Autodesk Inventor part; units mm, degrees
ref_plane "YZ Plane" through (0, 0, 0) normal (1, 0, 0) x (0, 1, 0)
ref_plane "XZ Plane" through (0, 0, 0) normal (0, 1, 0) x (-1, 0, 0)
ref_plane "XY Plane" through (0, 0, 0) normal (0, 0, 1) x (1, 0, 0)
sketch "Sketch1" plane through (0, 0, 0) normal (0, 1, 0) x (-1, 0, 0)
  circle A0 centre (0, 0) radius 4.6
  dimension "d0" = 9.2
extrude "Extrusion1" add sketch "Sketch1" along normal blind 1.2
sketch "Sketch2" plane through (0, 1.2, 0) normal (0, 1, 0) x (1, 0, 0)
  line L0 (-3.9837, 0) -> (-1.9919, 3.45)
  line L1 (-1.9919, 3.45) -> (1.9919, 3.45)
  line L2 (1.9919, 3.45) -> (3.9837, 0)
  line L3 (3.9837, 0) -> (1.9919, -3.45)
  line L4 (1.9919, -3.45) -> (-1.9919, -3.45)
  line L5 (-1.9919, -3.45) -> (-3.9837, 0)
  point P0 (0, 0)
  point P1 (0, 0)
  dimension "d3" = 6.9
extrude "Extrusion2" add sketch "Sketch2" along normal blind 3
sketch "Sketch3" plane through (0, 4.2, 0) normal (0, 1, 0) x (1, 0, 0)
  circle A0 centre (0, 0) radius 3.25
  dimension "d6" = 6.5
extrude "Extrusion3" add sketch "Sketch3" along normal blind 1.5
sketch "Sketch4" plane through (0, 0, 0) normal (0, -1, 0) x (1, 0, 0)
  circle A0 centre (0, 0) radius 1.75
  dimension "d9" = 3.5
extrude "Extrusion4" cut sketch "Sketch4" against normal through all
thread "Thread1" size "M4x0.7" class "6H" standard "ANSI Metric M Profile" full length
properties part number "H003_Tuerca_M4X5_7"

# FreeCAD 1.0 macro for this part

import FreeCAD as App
import Part
import Sketcher

V = App.Vector
Q = App.Units.Quantity

doc = App.newDocument("Part")
body = doc.addObject("PartDesign::Body", "Body")

# Sketch on XZ plane
sketch1 = body.newObject("Sketcher::SketchObject", "Sketch")
sketch1.AttachmentSupport = (doc.getObject("XZ_Plane"), [""])
sketch1.MapMode = "FlatFace"
sketch1.addGeometry(Part.Circle(V(0, 0, 0), V(0, 0, 1), 4.6), False)
sketch1.addConstraint([
    Sketcher.Constraint("Coincident", 0, 3, -1, 1),
    Sketcher.Constraint("Diameter", 0, 9.2),
])
pad1 = body.newObject("PartDesign::Pad", "Pad")
pad1.Profile = sketch1
pad1.Length = 1.2
pad1.Reversed = True

# Sketch on XZ plane
sketch2 = body.newObject("Sketcher::SketchObject", "Sketch001")
sketch2.AttachmentSupport = (doc.getObject("XZ_Plane"), [""])
sketch2.MapMode = "FlatFace"
sketch2.AttachmentOffset = App.Placement(V(0, 0, -1.2), App.Rotation())
sketch2.addGeometry([
    Part.LineSegment(V(-1.9919, -3.45, 0), V(-3.9837, 0, 0)),  # 0
    Part.LineSegment(V(-3.9837, 0, 0), V(-1.9919, 3.45, 0)),  # 1
    Part.LineSegment(V(-1.9919, 3.45, 0), V(1.9919, 3.45, 0)),  # 2
    Part.LineSegment(V(1.9919, 3.45, 0), V(3.9837, 0, 0)),  # 3
    Part.LineSegment(V(3.9837, 0, 0), V(1.9919, -3.45, 0)),  # 4
    Part.LineSegment(V(1.9919, -3.45, 0), V(-1.9919, -3.45, 0)),  # 5
], False)
sketch2.addConstraint([
    Sketcher.Constraint("Coincident", 0, 2, 1, 1),
    Sketcher.Constraint("Coincident", 1, 2, 2, 1),
    Sketcher.Constraint("Coincident", 2, 2, 3, 1),
    Sketcher.Constraint("Coincident", 3, 2, 4, 1),
    Sketcher.Constraint("Coincident", 4, 2, 5, 1),
    Sketcher.Constraint("Coincident", 5, 2, 0, 1),
    Sketcher.Constraint("Horizontal", 2),
    Sketcher.Constraint("Horizontal", 5),
    Sketcher.Constraint("Symmetric", 0, 2, 3, 2, -1, 1),
    Sketcher.Constraint("Symmetric", 1, 2, 4, 2, -1, 1),
    Sketcher.Constraint("PointOnObject", 0, 2, -1),
    Sketcher.Constraint("Parallel", 0, 3),
    Sketcher.Constraint("Vertical", 2, 2, 4, 2),
    Sketcher.Constraint("DistanceY", 4, 2, 2, 2, 6.9),
    Sketcher.Constraint("Angle", 0, Q("119.9993 deg")),
    Sketcher.Constraint("DistanceX", 2, 1, 2, 2, 3.9838),
])
pad2 = body.newObject("PartDesign::Pad", "Pad001")
pad2.Profile = sketch2
pad2.Length = 3
pad2.Reversed = True

# Sketch on XZ plane
sketch3 = body.newObject("Sketcher::SketchObject", "Sketch002")
sketch3.AttachmentSupport = (doc.getObject("XZ_Plane"), [""])
sketch3.MapMode = "FlatFace"
sketch3.AttachmentOffset = App.Placement(V(0, 0, -4.2), App.Rotation())
sketch3.addGeometry(Part.Circle(V(0, 0, 0), V(0, 0, 1), 3.25), False)
sketch3.addConstraint([
    Sketcher.Constraint("Coincident", 0, 3, -1, 1),
    Sketcher.Constraint("Diameter", 0, 6.5),
])
pad3 = body.newObject("PartDesign::Pad", "Pad002")
pad3.Profile = sketch3
pad3.Length = 1.5
pad3.Reversed = True

# Sketch on XZ plane
sketch4 = body.newObject("Sketcher::SketchObject", "Sketch003")
sketch4.AttachmentSupport = (doc.getObject("XZ_Plane"), [""])
sketch4.MapMode = "FlatFace"
sketch4.addGeometry(Part.Circle(V(0, 0, 0), V(0, 0, 1), 1.75), False)
sketch4.addConstraint([
    Sketcher.Constraint("Coincident", 0, 3, -1, 1),
    Sketcher.Constraint("Diameter", 0, 3.5),
])
pocket1 = body.newObject("PartDesign::Pocket", "Pocket")
pocket1.Profile = sketch4
pocket1.Type = "ThroughAll"

doc.recompute()
